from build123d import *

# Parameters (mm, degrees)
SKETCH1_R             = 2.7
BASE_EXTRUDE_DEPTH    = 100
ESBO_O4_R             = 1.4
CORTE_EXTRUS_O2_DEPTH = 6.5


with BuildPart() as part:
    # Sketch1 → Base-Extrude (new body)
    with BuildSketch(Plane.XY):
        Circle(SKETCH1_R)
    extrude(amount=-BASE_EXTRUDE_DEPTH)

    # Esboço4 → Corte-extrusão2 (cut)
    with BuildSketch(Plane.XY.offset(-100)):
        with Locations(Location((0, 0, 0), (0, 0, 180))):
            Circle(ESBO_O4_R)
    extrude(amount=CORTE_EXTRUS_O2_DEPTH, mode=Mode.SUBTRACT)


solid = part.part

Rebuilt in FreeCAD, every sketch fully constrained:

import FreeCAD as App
import Part
import Sketcher

V = App.Vector
Q = App.Units.Quantity

doc = App.newDocument("Part")
body = doc.addObject("PartDesign::Body", "Body")

# Sketch on XY plane
sketch1 = doc.addObject("Sketcher::SketchObject", "Sketch")
body.addObject(sketch1)
sketch1.AttachmentSupport = (doc.XY_Plane, [""])
sketch1.MapMode = "FlatFace"
sketch1.addGeometry(Part.Circle(V(0, 0, 0), V(0, 0, 1), 2.7), False)
sketch1.addConstraint([
    Sketcher.Constraint("Coincident", 0, 3, -1, 1),
    Sketcher.Constraint("Diameter", 0, Q("5.4 mm")),
])
pad1 = doc.addObject("PartDesign::Pad", "Pad")
body.addObject(pad1)
pad1.Profile = sketch1
pad1.Length = 100
pad1.Reversed = True

# Sketch on XY plane
sketch2 = doc.addObject("Sketcher::SketchObject", "Sketch001")
body.addObject(sketch2)
sketch2.AttachmentSupport = (doc.XY_Plane, [""])
sketch2.MapMode = "FlatFace"
sketch2.AttachmentOffset = App.Placement(V(0, 0, -100), App.Rotation())
sketch2.addGeometry(Part.Circle(V(0, 0, 0), V(0, 0, 1), 1.4), False)
sketch2.addConstraint([
    Sketcher.Constraint("Coincident", 0, 3, -1, 1),
    Sketcher.Constraint("Diameter", 0, Q("2.8 mm")),
])
pocket1 = doc.addObject("PartDesign::Pocket", "Pocket")
body.addObject(pocket1)
pocket1.Profile = sketch2
pocket1.Length = 6.5
pocket1.Reversed = True

doc.recompute()
